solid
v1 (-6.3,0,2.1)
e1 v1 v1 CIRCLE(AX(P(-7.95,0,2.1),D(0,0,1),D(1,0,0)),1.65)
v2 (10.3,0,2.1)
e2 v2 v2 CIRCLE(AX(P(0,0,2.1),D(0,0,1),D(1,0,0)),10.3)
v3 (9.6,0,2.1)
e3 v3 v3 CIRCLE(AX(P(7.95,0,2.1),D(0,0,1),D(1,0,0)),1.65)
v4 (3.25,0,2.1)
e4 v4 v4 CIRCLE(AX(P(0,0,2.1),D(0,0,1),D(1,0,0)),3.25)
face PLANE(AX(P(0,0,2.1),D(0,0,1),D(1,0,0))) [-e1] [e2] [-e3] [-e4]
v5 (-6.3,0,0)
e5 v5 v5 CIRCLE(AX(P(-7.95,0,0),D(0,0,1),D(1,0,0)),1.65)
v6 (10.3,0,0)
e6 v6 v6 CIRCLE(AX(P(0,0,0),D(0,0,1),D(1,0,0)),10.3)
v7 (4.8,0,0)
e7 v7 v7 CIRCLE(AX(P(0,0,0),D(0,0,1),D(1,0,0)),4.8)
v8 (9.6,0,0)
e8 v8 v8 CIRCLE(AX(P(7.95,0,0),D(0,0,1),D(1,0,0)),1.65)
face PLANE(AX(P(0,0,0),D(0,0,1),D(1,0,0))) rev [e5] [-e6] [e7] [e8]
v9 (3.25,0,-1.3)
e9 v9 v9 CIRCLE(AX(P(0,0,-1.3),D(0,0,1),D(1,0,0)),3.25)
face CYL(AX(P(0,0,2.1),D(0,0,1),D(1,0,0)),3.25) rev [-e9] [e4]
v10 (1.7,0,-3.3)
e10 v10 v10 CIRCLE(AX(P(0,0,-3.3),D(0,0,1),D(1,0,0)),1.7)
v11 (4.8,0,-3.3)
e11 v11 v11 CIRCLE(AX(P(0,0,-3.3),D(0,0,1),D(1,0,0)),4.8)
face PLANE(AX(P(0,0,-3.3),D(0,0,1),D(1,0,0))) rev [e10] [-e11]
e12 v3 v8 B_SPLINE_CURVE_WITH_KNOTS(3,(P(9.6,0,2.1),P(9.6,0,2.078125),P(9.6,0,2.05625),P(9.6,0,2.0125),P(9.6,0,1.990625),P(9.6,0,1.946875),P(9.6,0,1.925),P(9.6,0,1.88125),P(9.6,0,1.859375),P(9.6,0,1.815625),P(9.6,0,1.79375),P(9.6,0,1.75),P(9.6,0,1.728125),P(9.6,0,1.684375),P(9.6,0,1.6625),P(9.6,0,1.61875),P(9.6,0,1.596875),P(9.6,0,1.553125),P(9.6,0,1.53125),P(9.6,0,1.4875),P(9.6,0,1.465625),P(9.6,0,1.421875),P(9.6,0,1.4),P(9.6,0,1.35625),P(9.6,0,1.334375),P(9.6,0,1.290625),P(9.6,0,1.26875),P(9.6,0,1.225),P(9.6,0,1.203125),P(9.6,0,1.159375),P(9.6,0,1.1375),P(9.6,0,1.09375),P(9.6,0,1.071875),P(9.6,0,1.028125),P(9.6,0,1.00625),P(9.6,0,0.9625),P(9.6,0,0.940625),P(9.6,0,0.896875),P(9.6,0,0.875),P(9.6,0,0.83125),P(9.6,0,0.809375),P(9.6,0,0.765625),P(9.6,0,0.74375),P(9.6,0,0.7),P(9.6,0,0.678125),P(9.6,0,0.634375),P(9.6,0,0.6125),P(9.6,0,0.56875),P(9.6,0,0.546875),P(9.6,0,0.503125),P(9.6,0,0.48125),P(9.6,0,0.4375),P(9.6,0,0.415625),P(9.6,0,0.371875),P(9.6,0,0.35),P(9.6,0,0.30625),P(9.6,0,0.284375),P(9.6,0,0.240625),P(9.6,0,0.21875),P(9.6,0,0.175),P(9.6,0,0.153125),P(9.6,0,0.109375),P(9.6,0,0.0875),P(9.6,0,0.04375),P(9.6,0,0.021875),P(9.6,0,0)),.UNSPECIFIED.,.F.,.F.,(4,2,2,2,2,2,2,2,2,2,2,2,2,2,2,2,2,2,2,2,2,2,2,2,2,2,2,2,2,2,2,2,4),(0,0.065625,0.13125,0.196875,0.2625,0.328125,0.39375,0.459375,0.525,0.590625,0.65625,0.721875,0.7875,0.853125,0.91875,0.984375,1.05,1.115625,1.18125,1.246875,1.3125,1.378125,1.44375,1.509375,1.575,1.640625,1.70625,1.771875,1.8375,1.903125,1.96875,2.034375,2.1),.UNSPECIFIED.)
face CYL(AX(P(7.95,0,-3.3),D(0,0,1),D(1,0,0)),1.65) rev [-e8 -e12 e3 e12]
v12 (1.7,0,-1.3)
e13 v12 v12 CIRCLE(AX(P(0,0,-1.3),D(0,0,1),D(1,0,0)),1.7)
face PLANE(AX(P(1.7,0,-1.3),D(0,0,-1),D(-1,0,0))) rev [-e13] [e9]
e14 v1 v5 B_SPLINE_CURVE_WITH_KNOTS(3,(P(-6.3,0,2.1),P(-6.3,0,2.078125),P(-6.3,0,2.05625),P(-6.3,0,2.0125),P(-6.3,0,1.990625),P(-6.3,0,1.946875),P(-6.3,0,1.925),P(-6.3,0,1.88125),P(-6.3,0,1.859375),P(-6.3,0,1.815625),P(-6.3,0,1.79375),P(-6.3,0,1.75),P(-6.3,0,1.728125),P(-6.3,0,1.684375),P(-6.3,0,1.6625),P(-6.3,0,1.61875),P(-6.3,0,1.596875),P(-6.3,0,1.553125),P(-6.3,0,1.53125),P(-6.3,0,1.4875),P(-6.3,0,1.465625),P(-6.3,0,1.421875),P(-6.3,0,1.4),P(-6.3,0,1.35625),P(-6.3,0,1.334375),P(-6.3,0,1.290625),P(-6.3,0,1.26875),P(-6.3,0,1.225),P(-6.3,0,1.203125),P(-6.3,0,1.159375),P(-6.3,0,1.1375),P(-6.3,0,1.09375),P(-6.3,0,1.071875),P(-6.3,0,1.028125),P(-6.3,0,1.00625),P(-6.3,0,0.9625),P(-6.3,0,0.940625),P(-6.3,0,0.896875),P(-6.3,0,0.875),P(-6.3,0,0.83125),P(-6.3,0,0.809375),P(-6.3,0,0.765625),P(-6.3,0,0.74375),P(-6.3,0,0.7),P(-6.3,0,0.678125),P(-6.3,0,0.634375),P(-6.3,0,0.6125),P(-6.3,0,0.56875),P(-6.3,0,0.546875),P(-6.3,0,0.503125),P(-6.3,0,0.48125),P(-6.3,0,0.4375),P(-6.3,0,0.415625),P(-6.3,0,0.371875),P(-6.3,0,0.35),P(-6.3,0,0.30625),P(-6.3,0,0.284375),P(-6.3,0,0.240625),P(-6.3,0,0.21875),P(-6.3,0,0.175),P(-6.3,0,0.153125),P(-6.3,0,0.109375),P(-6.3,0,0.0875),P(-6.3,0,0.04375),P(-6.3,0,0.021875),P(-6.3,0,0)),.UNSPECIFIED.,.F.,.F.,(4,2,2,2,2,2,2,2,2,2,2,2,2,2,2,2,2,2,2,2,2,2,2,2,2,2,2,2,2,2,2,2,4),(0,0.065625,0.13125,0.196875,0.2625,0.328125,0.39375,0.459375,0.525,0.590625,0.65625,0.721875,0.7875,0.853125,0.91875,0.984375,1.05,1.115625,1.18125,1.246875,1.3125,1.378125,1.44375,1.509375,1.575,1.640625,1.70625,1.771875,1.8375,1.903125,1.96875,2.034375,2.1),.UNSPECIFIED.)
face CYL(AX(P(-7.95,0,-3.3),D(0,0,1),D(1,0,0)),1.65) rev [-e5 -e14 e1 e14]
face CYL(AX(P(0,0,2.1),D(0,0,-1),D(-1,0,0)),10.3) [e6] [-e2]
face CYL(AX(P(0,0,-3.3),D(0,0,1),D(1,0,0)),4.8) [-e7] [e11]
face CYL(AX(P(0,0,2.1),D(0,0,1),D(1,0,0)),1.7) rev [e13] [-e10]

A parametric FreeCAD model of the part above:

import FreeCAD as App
import Part
import Sketcher

V = App.Vector
Q = App.Units.Quantity

doc = App.newDocument("Part")
body = doc.addObject("PartDesign::Body", "Body")

sketch1 = body.newObject("Sketcher::SketchObject", "Sketch")
sketch1.AttachmentSupport = (doc.getObject("XY_Plane"), [""])
sketch1.MapMode = "FlatFace"
sketch1.addGeometry(Part.Circle(V(0, 0, 0), V(0, 0, 1), 10), False)
sketch1.addConstraint(Sketcher.Constraint("Coincident", 0, 3, -1, 1))
sketch1.addConstraint(Sketcher.Constraint("Diameter", 0, Q("20.6 mm")))
pad1 = body.newObject("PartDesign::Pad", "Pad")
pad1.Profile = sketch1
pad1.Length = 2.1

sketch2 = body.newObject("Sketcher::SketchObject", "Sketch001")
sketch2.AttachmentSupport = (doc.getObject("XY_Plane"), [""])
sketch2.MapMode = "FlatFace"
sketch2.addGeometry(Part.Circle(V(0, 0, 0), V(0, 0, 1), 4.8), False)
sketch2.addConstraint(Sketcher.Constraint("Coincident", 0, 3, -1, 1))
sketch2.addConstraint(Sketcher.Constraint("Diameter", 0, Q("9.6 mm")))
pad2 = body.newObject("PartDesign::Pad", "Pad001")
pad2.Profile = sketch2
pad2.Length = 3.3
pad2.Reversed = True

sketch3 = body.newObject("Sketcher::SketchObject", "Sketch002")
sketch3.AttachmentSupport = (doc.getObject("XY_Plane"), [""])
sketch3.MapMode = "FlatFace"
sketch3.AttachmentOffset = App.Placement(V(0, 0, 2.1), App.Rotation())
sketch3.addGeometry(Part.Circle(V(8, 0, 0), V(0, 0, 1), 1.6), False)
sketch3.addGeometry(Part.Circle(V(-8, 0, 0), V(0, 0, 1), 1.6), False)
sketch3.addConstraint(Sketcher.Constraint("Equal", 0, 1))
sketch3.addConstraint(Sketcher.Constraint("Symmetric", 0, 3, 1, 3, -1, 1))
sketch3.addConstraint(Sketcher.Constraint("PointOnObject", 0, 3, -1))
sketch3.addConstraint(Sketcher.Constraint("Diameter", 0, Q("3.3 mm")))
sketch3.addConstraint(Sketcher.Constraint("DistanceX", 1, 3, 0, 3, Q("15.9 mm")))
pocket1 = body.newObject("PartDesign::Pocket", "Pocket")
pocket1.Profile = sketch3
pocket1.Type = "ThroughAll"

sketch4 = body.newObject("Sketcher::SketchObject", "Sketch003")
sketch4.AttachmentSupport = (doc.getObject("YZ_Plane"), [""])
sketch4.MapMode = "FlatFace"
sketch4.addGeometry(Part.LineSegment(V(0, -3.3, 0), V(0, 2.1, 0)), False)
sketch4.addGeometry(Part.LineSegment(V(0, 2.1, 0), V(-3.2, 2.1, 0)), False)
sketch4.addGeometry(Part.LineSegment(V(-3.2, 2.1, 0), V(-3.2, -1.3, 0)), False)
sketch4.addGeometry(Part.LineSegment(V(-3.2, -1.3, 0), V(-1.7, -1.3, 0)), False)
sketch4.addGeometry(Part.LineSegment(V(-1.7, -1.3, 0), V(-1.7, -3.3, 0)), False)
sketch4.addGeometry(Part.LineSegment(V(-1.7, -3.3, 0), V(0, -3.3, 0)), False)
sketch4.addConstraint(Sketcher.Constraint("Coincident", 0, 2, 1, 1))
sketch4.addConstraint(Sketcher.Constraint("Coincident", 1, 2, 2, 1))
sketch4.addConstraint(Sketcher.Constraint("Coincident", 2, 2, 3, 1))
sketch4.addConstraint(Sketcher.Constraint("Coincident", 3, 2, 4, 1))
sketch4.addConstraint(Sketcher.Constraint("Coincident", 4, 2, 5, 1))
sketch4.addConstraint(Sketcher.Constraint("Coincident", 5, 2, 0, 1))
sketch4.addConstraint(Sketcher.Constraint("Vertical", 0))
sketch4.addConstraint(Sketcher.Constraint("Horizontal", 1))
sketch4.addConstraint(Sketcher.Constraint("Vertical", 2))
sketch4.addConstraint(Sketcher.Constraint("Horizontal", 3))
sketch4.addConstraint(Sketcher.Constraint("Vertical", 4))
sketch4.addConstraint(Sketcher.Constraint("Horizontal", 5))
sketch4.addConstraint(Sketcher.Constraint("PointOnObject", 0, 2, -2))
sketch4.addConstraint(Sketcher.Constraint("DistanceY", 4, 2, 4, 1, Q("2 mm")))
sketch4.addConstraint(Sketcher.Constraint("DistanceX", 5, 1, 5, 2, Q("1.7 mm")))
sketch4.addConstraint(Sketcher.Constraint("DistanceY", 0, 1, 0, 2, Q("5.4 mm")))
sketch4.addConstraint(Sketcher.Constraint("DistanceX", 1, 2, 1, 1, Q("3.25 mm")))
sketch4.addConstraint(Sketcher.Constraint("DistanceY", -1, 1, 0, 2, Q("2.1 mm")))
groove = body.newObject("PartDesign::Groove", "Groove")
groove.Profile = sketch4
groove.ReferenceAxis = (sketch4, ["V_Axis"])
groove.Angle = 360

doc.recompute()
